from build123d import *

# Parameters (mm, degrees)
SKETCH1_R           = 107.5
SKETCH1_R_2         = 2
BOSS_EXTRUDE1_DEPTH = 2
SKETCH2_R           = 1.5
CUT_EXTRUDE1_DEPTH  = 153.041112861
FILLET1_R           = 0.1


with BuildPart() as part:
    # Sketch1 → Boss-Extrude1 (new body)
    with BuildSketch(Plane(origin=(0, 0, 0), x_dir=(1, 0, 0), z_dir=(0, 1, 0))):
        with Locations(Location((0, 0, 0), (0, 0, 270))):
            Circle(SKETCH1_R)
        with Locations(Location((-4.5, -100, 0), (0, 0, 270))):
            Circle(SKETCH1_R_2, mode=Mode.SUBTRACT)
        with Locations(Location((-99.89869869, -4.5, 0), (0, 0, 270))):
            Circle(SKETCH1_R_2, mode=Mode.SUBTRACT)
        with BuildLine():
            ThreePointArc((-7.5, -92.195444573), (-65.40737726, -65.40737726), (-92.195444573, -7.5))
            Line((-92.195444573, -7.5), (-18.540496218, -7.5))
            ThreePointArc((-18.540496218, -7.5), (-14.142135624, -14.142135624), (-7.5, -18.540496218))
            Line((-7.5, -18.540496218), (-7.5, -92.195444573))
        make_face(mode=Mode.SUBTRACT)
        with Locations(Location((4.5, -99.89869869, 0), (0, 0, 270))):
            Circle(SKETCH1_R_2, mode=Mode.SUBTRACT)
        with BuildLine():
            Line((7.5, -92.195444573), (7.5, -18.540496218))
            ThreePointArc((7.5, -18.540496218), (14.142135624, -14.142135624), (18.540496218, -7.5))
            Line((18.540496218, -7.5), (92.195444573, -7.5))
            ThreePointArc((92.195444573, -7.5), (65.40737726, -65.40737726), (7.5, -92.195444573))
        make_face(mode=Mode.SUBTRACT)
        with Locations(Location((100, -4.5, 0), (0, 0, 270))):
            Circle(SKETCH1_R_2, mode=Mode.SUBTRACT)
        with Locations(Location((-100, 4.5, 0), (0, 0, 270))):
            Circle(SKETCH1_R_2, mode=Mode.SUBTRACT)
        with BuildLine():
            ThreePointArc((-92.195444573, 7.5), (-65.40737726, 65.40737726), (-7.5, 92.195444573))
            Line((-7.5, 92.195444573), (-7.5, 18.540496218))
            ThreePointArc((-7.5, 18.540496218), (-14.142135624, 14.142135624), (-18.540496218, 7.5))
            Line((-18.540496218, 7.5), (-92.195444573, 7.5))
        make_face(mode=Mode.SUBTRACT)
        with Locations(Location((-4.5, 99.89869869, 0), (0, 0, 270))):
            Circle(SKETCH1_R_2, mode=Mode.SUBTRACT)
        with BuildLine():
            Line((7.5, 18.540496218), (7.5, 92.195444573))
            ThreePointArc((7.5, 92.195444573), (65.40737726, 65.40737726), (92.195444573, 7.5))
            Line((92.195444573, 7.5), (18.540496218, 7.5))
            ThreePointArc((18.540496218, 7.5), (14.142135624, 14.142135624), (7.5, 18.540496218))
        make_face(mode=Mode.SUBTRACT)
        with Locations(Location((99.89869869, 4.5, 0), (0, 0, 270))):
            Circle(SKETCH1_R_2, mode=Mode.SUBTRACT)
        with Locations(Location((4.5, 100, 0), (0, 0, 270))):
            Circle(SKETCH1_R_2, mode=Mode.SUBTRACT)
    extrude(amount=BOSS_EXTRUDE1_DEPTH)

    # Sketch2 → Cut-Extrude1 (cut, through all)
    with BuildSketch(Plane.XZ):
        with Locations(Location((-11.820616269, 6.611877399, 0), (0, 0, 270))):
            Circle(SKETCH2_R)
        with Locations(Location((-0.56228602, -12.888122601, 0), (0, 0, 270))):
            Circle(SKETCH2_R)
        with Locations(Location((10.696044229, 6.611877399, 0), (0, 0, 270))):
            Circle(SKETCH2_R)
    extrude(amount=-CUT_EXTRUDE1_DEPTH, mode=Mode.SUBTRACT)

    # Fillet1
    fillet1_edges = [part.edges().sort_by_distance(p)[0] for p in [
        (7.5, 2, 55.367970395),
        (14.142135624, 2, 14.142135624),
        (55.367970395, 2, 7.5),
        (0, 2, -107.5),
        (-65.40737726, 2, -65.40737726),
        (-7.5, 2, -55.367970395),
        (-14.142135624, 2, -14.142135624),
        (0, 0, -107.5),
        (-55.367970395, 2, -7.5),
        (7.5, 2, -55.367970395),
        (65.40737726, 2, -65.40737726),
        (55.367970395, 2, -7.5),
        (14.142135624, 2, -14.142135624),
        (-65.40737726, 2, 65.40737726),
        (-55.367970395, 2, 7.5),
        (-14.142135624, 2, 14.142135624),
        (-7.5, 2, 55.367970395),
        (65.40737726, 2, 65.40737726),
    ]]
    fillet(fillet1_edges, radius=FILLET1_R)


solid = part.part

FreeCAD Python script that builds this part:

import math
import FreeCAD as App
import Part
import Sketcher


def edges_at(feature, points):
    """Names of the edges that pass closest to the given points."""
    edges = feature.Shape.Edges
    near = lambda p: min(range(len(edges)), key=lambda i: edges[i].distToShape(Part.Vertex(*p))[0])
    return sorted({f"Edge{near(p) + 1}" for p in points})

doc = App.newDocument("Part")
body = doc.addObject("PartDesign::Body", "Body")

# Sketch on XZ plane
sketch1 = doc.addObject("Sketcher::SketchObject", "Sketch")
body.addObject(sketch1)
sketch1.AttachmentSupport = (doc.XZ_Plane, [""])
sketch1.MapMode = "FlatFace"
sketch1.addGeometry(Part.Circle(App.Vector(0, 0, 0), App.Vector(0, 0, 1), 107.5), False)
sketch1.addGeometry(Part.Circle(App.Vector(-100, -4.5, 0), App.Vector(0, 0, 1), 2), False)
sketch1.addGeometry(Part.Circle(App.Vector(-4.5, -99.9, 0), App.Vector(0, 0, 1), 2), False)
sketch1.addGeometry(Part.LineSegment(App.Vector(-18.5, -7.5, 0), App.Vector(-92.2, -7.5, 0)), False)
sketch1.addGeometry(Part.ArcOfCircle(Part.Circle(App.Vector(0, 0, 0), App.Vector(0, 0, 1), 92.5), math.radians(-175), math.radians(-95)), False)
sketch1.addGeometry(Part.LineSegment(App.Vector(-7.5, -92.2, 0), App.Vector(-7.5, -18.5, 0)), False)
sketch1.addGeometry(Part.ArcOfCircle(Part.Circle(App.Vector(0, 0, 0), App.Vector(0, 0, 1), 20), math.radians(-158), math.radians(-112)), False)
sketch1.addGeometry(Part.Circle(App.Vector(-99.9, 4.5, 0), App.Vector(0, 0, 1), 2), False)
sketch1.addGeometry(Part.LineSegment(App.Vector(-7.5, 18.5, 0), App.Vector(-7.5, 92.2, 0)), False)
sketch1.addGeometry(Part.ArcOfCircle(Part.Circle(App.Vector(0, 0, 0), App.Vector(0, 0, 1), 92.5), math.radians(95), math.radians(175)), False)
sketch1.addGeometry(Part.LineSegment(App.Vector(-92.2, 7.5, 0), App.Vector(-18.5, 7.5, 0)), False)
sketch1.addGeometry(Part.ArcOfCircle(Part.Circle(App.Vector(0, 0, 0), App.Vector(0, 0, 1), 20), math.radians(112), math.radians(158)), False)
sketch1.addGeometry(Part.Circle(App.Vector(-4.5, 100, 0), App.Vector(0, 0, 1), 2), False)
sketch1.addGeometry(Part.Circle(App.Vector(4.5, -100, 0), App.Vector(0, 0, 1), 2), False)
sketch1.addGeometry(Part.ArcOfCircle(Part.Circle(App.Vector(0, 0, 0), App.Vector(0, 0, 1), 20), math.radians(-68), math.radians(-22)), False)
sketch1.addGeometry(Part.LineSegment(App.Vector(7.5, -18.5, 0), App.Vector(7.5, -92.2, 0)), False)
sketch1.addGeometry(Part.ArcOfCircle(Part.Circle(App.Vector(0, 0, 0), App.Vector(0, 0, 1), 92.5), math.radians(-85), math.radians(-5)), False)
sketch1.addGeometry(Part.LineSegment(App.Vector(92.2, -7.5, 0), App.Vector(18.5, -7.5, 0)), False)
sketch1.addGeometry(Part.Circle(App.Vector(99.9, -4.5, 0), App.Vector(0, 0, 1), 2), False)
sketch1.addGeometry(Part.ArcOfCircle(Part.Circle(App.Vector(0, 0, 0), App.Vector(0, 0, 1), 92.5), math.radians(5), math.radians(85)), False)
sketch1.addGeometry(Part.LineSegment(App.Vector(7.5, 92.2, 0), App.Vector(7.5, 18.5, 0)), False)
sketch1.addGeometry(Part.ArcOfCircle(Part.Circle(App.Vector(0, 0, 0), App.Vector(0, 0, 1), 20), math.radians(22), math.radians(68)), False)
sketch1.addGeometry(Part.LineSegment(App.Vector(18.5, 7.5, 0), App.Vector(92.2, 7.5, 0)), False)
sketch1.addGeometry(Part.Circle(App.Vector(4.5, 99.9, 0), App.Vector(0, 0, 1), 2), False)
sketch1.addGeometry(Part.Circle(App.Vector(100, 4.5, 0), App.Vector(0, 0, 1), 2), False)
sketch1.addConstraint(Sketcher.Constraint("Coincident", 3, 2, 4, 1))
sketch1.addConstraint(Sketcher.Constraint("Coincident", 4, 2, 5, 1))
sketch1.addConstraint(Sketcher.Constraint("Coincident", 5, 2, 6, 2))
sketch1.addConstraint(Sketcher.Constraint("Coincident", 6, 1, 3, 1))
sketch1.addConstraint(Sketcher.Constraint("Coincident", 8, 2, 9, 1))
sketch1.addConstraint(Sketcher.Constraint("Coincident", 9, 2, 10, 1))
sketch1.addConstraint(Sketcher.Constraint("Coincident", 10, 2, 11, 2))
sketch1.addConstraint(Sketcher.Constraint("Coincident", 11, 1, 8, 1))
sketch1.addConstraint(Sketcher.Constraint("Coincident", 14, 1, 15, 1))
sketch1.addConstraint(Sketcher.Constraint("Coincident", 15, 2, 16, 1))
sketch1.addConstraint(Sketcher.Constraint("Coincident", 16, 2, 17, 1))
sketch1.addConstraint(Sketcher.Constraint("Coincident", 17, 2, 14, 2))
sketch1.addConstraint(Sketcher.Constraint("Coincident", 19, 2, 20, 1))
sketch1.addConstraint(Sketcher.Constraint("Coincident", 20, 2, 21, 2))
sketch1.addConstraint(Sketcher.Constraint("Coincident", 21, 1, 22, 1))
sketch1.addConstraint(Sketcher.Constraint("Coincident", 22, 2, 19, 1))
sketch1.addConstraint(Sketcher.Constraint("Horizontal", 3))
sketch1.addConstraint(Sketcher.Constraint("Vertical", 5))
sketch1.addConstraint(Sketcher.Constraint("Vertical", 8))
sketch1.addConstraint(Sketcher.Constraint("Horizontal", 10))
sketch1.addConstraint(Sketcher.Constraint("Vertical", 15))
sketch1.addConstraint(Sketcher.Constraint("Horizontal", 17))
sketch1.addConstraint(Sketcher.Constraint("Vertical", 20))
sketch1.addConstraint(Sketcher.Constraint("Horizontal", 22))
sketch1.addConstraint(Sketcher.Constraint("Coincident", 0, 3, -1, 1))
sketch1.addConstraint(Sketcher.Constraint("Coincident", 4, 3, -1, 1))
sketch1.addConstraint(Sketcher.Constraint("Coincident", 6, 3, -1, 1))
sketch1.addConstraint(Sketcher.Constraint("Coincident", 9, 3, -1, 1))
sketch1.addConstraint(Sketcher.Constraint("Coincident", 11, 3, -1, 1))
sketch1.addConstraint(Sketcher.Constraint("Coincident", 14, 3, -1, 1))
sketch1.addConstraint(Sketcher.Constraint("Coincident", 16, 3, -1, 1))
sketch1.addConstraint(Sketcher.Constraint("Coincident", 19, 3, -1, 1))
sketch1.addConstraint(Sketcher.Constraint("Coincident", 21, 3, -1, 1))
sketch1.addConstraint(Sketcher.Constraint("Equal", 1, 2))
sketch1.addConstraint(Sketcher.Constraint("Equal", 2, 7))
sketch1.addConstraint(Sketcher.Constraint("Equal", 4, 9))
sketch1.addConstraint(Sketcher.Constraint("Equal", 6, 11))
sketch1.addConstraint(Sketcher.Constraint("Equal", 7, 12))
sketch1.addConstraint(Sketcher.Constraint("Equal", 12, 13))
sketch1.addConstraint(Sketcher.Constraint("Equal", 11, 14))
sketch1.addConstraint(Sketcher.Constraint("Equal", 9, 16))
sketch1.addConstraint(Sketcher.Constraint("Equal", 13, 18))
sketch1.addConstraint(Sketcher.Constraint("Equal", 16, 19))
sketch1.addConstraint(Sketcher.Constraint("Equal", 14, 21))
sketch1.addConstraint(Sketcher.Constraint("Equal", 18, 23))
sketch1.addConstraint(Sketcher.Constraint("Equal", 23, 24))
sketch1.addConstraint(Sketcher.Constraint("Symmetric", 12, 3, 13, 3, -1, 1))
sketch1.addConstraint(Sketcher.Constraint("Symmetric", 7, 3, 18, 3, -1, 1))
sketch1.addConstraint(Sketcher.Constraint("Symmetric", 2, 3, 23, 3, -1, 1))
sketch1.addConstraint(Sketcher.Constraint("Symmetric", 1, 3, 24, 3, -1, 1))
sketch1.addConstraint(Sketcher.Constraint("Horizontal", 1, 3, 18, 3))
sketch1.addConstraint(Sketcher.Constraint("Horizontal", 5, 2, 14, 1))
sketch1.addConstraint(Sketcher.Constraint("Horizontal", 6, 1, 16, 2))
sketch1.addConstraint(Sketcher.Constraint("Horizontal", 8, 2, 19, 2))
sketch1.addConstraint(Sketcher.Constraint("Horizontal", 10, 2, 21, 1))
sketch1.addConstraint(Sketcher.Constraint("Vertical", 2, 3, 12, 3))
sketch1.addConstraint(Sketcher.Constraint("Vertical", 5, 2, 8, 2))
sketch1.addConstraint(Sketcher.Constraint("Vertical", 3, 2, 9, 2))
sketch1.addConstraint(Sketcher.Constraint("Equal", 22, 5))
sketch1.addConstraint(Sketcher.Constraint("Diameter", 0, 215.0))
sketch1.addConstraint(Sketcher.Constraint("Diameter", 1, 4.0))
sketch1.addConstraint(Sketcher.Constraint("Radius", 6, 20.0))
sketch1.addConstraint(Sketcher.Constraint("Radius", 4, 92.5))
sketch1.addConstraint(Sketcher.Constraint("DistanceX", 1, 3, -1, 1, 100.0))
sketch1.addConstraint(Sketcher.Constraint("DistanceY", -1, 1, 12, 3, 100.0))
sketch1.addConstraint(Sketcher.Constraint("DistanceY", 1, 3, 7, 3, 9.0))
sketch1.addConstraint(Sketcher.Constraint("DistanceX", 2, 3, 13, 3, 9.0))
sketch1.addConstraint(Sketcher.Constraint("DistanceY", 3, 2, 1, 3, 3.0))
sketch1.addConstraint(Sketcher.Constraint("DistanceY", 2, 3, -1, 1, 99.898699))
sketch1.addConstraint(Sketcher.Constraint("DistanceX", 7, 3, -1, 1, 99.898699))
pad1 = doc.addObject("PartDesign::Pad", "Pad")
body.addObject(pad1)
pad1.Profile = sketch1
pad1.Length = 2
pad1.Reversed = True

# Sketch on XZ plane
sketch2 = doc.addObject("Sketcher::SketchObject", "Sketch001")
body.addObject(sketch2)
sketch2.AttachmentSupport = (doc.XZ_Plane, [""])
sketch2.MapMode = "FlatFace"
sketch2.addGeometry(Part.Circle(App.Vector(-11.8, 6.6, 0), App.Vector(0, 0, 1), 1.5), False)
sketch2.addGeometry(Part.Circle(App.Vector(-0.6, -12.9, 0), App.Vector(0, 0, 1), 1.5), False)
sketch2.addGeometry(Part.Circle(App.Vector(10.7, 6.6, 0), App.Vector(0, 0, 1), 1.5), False)
sketch2.addConstraint(Sketcher.Constraint("Equal", 0, 1))
sketch2.addConstraint(Sketcher.Constraint("Equal", 1, 2))
sketch2.addConstraint(Sketcher.Constraint("Horizontal", 0, 3, 2, 3))
sketch2.addConstraint(Sketcher.Constraint("Diameter", 0, 3.0))
sketch2.addConstraint(Sketcher.Constraint("DistanceY", 1, 3, 0, 3, 19.5))
sketch2.addConstraint(Sketcher.Constraint("DistanceX", 0, 3, 1, 3, 11.25833))
sketch2.addConstraint(Sketcher.Constraint("DistanceX", 0, 3, 2, 3, 22.51666))
sketch2.addConstraint(Sketcher.Constraint("DistanceX", 0, 3, -1, 1, 11.820616))
sketch2.addConstraint(Sketcher.Constraint("DistanceY", -1, 1, 0, 3, 6.611877))
pocket1 = doc.addObject("PartDesign::Pocket", "Pocket")
body.addObject(pocket1)
pocket1.Profile = sketch2
pocket1.Type = "ThroughAll"
doc.recompute()

fillet = doc.addObject("PartDesign::Fillet", "Fillet")
body.addObject(fillet)
fillet.Base = (pocket1, edges_at(pocket1, [
    (7.5, 2, 55.368),
    (14.142, 2, 14.142),
    (55.368, 2, 7.5),
    (0, 2, -107.5),
    (-65.407, 2, -65.407),
    (-7.5, 2, -55.368),
    (-14.142, 2, -14.142),
    (0, 0, -107.5),
    (-55.368, 2, -7.5),
    (7.5, 2, -55.368),
    (65.407, 2, -65.407),
    (55.368, 2, -7.5),
    (14.142, 2, -14.142),
    (-65.407, 2, 65.407),
    (-55.368, 2, 7.5),
    (-14.142, 2, 14.142),
    (-7.5, 2, 55.368),
    (65.407, 2, 65.407),
]))
fillet.Radius = 0.1

doc.recompute()
